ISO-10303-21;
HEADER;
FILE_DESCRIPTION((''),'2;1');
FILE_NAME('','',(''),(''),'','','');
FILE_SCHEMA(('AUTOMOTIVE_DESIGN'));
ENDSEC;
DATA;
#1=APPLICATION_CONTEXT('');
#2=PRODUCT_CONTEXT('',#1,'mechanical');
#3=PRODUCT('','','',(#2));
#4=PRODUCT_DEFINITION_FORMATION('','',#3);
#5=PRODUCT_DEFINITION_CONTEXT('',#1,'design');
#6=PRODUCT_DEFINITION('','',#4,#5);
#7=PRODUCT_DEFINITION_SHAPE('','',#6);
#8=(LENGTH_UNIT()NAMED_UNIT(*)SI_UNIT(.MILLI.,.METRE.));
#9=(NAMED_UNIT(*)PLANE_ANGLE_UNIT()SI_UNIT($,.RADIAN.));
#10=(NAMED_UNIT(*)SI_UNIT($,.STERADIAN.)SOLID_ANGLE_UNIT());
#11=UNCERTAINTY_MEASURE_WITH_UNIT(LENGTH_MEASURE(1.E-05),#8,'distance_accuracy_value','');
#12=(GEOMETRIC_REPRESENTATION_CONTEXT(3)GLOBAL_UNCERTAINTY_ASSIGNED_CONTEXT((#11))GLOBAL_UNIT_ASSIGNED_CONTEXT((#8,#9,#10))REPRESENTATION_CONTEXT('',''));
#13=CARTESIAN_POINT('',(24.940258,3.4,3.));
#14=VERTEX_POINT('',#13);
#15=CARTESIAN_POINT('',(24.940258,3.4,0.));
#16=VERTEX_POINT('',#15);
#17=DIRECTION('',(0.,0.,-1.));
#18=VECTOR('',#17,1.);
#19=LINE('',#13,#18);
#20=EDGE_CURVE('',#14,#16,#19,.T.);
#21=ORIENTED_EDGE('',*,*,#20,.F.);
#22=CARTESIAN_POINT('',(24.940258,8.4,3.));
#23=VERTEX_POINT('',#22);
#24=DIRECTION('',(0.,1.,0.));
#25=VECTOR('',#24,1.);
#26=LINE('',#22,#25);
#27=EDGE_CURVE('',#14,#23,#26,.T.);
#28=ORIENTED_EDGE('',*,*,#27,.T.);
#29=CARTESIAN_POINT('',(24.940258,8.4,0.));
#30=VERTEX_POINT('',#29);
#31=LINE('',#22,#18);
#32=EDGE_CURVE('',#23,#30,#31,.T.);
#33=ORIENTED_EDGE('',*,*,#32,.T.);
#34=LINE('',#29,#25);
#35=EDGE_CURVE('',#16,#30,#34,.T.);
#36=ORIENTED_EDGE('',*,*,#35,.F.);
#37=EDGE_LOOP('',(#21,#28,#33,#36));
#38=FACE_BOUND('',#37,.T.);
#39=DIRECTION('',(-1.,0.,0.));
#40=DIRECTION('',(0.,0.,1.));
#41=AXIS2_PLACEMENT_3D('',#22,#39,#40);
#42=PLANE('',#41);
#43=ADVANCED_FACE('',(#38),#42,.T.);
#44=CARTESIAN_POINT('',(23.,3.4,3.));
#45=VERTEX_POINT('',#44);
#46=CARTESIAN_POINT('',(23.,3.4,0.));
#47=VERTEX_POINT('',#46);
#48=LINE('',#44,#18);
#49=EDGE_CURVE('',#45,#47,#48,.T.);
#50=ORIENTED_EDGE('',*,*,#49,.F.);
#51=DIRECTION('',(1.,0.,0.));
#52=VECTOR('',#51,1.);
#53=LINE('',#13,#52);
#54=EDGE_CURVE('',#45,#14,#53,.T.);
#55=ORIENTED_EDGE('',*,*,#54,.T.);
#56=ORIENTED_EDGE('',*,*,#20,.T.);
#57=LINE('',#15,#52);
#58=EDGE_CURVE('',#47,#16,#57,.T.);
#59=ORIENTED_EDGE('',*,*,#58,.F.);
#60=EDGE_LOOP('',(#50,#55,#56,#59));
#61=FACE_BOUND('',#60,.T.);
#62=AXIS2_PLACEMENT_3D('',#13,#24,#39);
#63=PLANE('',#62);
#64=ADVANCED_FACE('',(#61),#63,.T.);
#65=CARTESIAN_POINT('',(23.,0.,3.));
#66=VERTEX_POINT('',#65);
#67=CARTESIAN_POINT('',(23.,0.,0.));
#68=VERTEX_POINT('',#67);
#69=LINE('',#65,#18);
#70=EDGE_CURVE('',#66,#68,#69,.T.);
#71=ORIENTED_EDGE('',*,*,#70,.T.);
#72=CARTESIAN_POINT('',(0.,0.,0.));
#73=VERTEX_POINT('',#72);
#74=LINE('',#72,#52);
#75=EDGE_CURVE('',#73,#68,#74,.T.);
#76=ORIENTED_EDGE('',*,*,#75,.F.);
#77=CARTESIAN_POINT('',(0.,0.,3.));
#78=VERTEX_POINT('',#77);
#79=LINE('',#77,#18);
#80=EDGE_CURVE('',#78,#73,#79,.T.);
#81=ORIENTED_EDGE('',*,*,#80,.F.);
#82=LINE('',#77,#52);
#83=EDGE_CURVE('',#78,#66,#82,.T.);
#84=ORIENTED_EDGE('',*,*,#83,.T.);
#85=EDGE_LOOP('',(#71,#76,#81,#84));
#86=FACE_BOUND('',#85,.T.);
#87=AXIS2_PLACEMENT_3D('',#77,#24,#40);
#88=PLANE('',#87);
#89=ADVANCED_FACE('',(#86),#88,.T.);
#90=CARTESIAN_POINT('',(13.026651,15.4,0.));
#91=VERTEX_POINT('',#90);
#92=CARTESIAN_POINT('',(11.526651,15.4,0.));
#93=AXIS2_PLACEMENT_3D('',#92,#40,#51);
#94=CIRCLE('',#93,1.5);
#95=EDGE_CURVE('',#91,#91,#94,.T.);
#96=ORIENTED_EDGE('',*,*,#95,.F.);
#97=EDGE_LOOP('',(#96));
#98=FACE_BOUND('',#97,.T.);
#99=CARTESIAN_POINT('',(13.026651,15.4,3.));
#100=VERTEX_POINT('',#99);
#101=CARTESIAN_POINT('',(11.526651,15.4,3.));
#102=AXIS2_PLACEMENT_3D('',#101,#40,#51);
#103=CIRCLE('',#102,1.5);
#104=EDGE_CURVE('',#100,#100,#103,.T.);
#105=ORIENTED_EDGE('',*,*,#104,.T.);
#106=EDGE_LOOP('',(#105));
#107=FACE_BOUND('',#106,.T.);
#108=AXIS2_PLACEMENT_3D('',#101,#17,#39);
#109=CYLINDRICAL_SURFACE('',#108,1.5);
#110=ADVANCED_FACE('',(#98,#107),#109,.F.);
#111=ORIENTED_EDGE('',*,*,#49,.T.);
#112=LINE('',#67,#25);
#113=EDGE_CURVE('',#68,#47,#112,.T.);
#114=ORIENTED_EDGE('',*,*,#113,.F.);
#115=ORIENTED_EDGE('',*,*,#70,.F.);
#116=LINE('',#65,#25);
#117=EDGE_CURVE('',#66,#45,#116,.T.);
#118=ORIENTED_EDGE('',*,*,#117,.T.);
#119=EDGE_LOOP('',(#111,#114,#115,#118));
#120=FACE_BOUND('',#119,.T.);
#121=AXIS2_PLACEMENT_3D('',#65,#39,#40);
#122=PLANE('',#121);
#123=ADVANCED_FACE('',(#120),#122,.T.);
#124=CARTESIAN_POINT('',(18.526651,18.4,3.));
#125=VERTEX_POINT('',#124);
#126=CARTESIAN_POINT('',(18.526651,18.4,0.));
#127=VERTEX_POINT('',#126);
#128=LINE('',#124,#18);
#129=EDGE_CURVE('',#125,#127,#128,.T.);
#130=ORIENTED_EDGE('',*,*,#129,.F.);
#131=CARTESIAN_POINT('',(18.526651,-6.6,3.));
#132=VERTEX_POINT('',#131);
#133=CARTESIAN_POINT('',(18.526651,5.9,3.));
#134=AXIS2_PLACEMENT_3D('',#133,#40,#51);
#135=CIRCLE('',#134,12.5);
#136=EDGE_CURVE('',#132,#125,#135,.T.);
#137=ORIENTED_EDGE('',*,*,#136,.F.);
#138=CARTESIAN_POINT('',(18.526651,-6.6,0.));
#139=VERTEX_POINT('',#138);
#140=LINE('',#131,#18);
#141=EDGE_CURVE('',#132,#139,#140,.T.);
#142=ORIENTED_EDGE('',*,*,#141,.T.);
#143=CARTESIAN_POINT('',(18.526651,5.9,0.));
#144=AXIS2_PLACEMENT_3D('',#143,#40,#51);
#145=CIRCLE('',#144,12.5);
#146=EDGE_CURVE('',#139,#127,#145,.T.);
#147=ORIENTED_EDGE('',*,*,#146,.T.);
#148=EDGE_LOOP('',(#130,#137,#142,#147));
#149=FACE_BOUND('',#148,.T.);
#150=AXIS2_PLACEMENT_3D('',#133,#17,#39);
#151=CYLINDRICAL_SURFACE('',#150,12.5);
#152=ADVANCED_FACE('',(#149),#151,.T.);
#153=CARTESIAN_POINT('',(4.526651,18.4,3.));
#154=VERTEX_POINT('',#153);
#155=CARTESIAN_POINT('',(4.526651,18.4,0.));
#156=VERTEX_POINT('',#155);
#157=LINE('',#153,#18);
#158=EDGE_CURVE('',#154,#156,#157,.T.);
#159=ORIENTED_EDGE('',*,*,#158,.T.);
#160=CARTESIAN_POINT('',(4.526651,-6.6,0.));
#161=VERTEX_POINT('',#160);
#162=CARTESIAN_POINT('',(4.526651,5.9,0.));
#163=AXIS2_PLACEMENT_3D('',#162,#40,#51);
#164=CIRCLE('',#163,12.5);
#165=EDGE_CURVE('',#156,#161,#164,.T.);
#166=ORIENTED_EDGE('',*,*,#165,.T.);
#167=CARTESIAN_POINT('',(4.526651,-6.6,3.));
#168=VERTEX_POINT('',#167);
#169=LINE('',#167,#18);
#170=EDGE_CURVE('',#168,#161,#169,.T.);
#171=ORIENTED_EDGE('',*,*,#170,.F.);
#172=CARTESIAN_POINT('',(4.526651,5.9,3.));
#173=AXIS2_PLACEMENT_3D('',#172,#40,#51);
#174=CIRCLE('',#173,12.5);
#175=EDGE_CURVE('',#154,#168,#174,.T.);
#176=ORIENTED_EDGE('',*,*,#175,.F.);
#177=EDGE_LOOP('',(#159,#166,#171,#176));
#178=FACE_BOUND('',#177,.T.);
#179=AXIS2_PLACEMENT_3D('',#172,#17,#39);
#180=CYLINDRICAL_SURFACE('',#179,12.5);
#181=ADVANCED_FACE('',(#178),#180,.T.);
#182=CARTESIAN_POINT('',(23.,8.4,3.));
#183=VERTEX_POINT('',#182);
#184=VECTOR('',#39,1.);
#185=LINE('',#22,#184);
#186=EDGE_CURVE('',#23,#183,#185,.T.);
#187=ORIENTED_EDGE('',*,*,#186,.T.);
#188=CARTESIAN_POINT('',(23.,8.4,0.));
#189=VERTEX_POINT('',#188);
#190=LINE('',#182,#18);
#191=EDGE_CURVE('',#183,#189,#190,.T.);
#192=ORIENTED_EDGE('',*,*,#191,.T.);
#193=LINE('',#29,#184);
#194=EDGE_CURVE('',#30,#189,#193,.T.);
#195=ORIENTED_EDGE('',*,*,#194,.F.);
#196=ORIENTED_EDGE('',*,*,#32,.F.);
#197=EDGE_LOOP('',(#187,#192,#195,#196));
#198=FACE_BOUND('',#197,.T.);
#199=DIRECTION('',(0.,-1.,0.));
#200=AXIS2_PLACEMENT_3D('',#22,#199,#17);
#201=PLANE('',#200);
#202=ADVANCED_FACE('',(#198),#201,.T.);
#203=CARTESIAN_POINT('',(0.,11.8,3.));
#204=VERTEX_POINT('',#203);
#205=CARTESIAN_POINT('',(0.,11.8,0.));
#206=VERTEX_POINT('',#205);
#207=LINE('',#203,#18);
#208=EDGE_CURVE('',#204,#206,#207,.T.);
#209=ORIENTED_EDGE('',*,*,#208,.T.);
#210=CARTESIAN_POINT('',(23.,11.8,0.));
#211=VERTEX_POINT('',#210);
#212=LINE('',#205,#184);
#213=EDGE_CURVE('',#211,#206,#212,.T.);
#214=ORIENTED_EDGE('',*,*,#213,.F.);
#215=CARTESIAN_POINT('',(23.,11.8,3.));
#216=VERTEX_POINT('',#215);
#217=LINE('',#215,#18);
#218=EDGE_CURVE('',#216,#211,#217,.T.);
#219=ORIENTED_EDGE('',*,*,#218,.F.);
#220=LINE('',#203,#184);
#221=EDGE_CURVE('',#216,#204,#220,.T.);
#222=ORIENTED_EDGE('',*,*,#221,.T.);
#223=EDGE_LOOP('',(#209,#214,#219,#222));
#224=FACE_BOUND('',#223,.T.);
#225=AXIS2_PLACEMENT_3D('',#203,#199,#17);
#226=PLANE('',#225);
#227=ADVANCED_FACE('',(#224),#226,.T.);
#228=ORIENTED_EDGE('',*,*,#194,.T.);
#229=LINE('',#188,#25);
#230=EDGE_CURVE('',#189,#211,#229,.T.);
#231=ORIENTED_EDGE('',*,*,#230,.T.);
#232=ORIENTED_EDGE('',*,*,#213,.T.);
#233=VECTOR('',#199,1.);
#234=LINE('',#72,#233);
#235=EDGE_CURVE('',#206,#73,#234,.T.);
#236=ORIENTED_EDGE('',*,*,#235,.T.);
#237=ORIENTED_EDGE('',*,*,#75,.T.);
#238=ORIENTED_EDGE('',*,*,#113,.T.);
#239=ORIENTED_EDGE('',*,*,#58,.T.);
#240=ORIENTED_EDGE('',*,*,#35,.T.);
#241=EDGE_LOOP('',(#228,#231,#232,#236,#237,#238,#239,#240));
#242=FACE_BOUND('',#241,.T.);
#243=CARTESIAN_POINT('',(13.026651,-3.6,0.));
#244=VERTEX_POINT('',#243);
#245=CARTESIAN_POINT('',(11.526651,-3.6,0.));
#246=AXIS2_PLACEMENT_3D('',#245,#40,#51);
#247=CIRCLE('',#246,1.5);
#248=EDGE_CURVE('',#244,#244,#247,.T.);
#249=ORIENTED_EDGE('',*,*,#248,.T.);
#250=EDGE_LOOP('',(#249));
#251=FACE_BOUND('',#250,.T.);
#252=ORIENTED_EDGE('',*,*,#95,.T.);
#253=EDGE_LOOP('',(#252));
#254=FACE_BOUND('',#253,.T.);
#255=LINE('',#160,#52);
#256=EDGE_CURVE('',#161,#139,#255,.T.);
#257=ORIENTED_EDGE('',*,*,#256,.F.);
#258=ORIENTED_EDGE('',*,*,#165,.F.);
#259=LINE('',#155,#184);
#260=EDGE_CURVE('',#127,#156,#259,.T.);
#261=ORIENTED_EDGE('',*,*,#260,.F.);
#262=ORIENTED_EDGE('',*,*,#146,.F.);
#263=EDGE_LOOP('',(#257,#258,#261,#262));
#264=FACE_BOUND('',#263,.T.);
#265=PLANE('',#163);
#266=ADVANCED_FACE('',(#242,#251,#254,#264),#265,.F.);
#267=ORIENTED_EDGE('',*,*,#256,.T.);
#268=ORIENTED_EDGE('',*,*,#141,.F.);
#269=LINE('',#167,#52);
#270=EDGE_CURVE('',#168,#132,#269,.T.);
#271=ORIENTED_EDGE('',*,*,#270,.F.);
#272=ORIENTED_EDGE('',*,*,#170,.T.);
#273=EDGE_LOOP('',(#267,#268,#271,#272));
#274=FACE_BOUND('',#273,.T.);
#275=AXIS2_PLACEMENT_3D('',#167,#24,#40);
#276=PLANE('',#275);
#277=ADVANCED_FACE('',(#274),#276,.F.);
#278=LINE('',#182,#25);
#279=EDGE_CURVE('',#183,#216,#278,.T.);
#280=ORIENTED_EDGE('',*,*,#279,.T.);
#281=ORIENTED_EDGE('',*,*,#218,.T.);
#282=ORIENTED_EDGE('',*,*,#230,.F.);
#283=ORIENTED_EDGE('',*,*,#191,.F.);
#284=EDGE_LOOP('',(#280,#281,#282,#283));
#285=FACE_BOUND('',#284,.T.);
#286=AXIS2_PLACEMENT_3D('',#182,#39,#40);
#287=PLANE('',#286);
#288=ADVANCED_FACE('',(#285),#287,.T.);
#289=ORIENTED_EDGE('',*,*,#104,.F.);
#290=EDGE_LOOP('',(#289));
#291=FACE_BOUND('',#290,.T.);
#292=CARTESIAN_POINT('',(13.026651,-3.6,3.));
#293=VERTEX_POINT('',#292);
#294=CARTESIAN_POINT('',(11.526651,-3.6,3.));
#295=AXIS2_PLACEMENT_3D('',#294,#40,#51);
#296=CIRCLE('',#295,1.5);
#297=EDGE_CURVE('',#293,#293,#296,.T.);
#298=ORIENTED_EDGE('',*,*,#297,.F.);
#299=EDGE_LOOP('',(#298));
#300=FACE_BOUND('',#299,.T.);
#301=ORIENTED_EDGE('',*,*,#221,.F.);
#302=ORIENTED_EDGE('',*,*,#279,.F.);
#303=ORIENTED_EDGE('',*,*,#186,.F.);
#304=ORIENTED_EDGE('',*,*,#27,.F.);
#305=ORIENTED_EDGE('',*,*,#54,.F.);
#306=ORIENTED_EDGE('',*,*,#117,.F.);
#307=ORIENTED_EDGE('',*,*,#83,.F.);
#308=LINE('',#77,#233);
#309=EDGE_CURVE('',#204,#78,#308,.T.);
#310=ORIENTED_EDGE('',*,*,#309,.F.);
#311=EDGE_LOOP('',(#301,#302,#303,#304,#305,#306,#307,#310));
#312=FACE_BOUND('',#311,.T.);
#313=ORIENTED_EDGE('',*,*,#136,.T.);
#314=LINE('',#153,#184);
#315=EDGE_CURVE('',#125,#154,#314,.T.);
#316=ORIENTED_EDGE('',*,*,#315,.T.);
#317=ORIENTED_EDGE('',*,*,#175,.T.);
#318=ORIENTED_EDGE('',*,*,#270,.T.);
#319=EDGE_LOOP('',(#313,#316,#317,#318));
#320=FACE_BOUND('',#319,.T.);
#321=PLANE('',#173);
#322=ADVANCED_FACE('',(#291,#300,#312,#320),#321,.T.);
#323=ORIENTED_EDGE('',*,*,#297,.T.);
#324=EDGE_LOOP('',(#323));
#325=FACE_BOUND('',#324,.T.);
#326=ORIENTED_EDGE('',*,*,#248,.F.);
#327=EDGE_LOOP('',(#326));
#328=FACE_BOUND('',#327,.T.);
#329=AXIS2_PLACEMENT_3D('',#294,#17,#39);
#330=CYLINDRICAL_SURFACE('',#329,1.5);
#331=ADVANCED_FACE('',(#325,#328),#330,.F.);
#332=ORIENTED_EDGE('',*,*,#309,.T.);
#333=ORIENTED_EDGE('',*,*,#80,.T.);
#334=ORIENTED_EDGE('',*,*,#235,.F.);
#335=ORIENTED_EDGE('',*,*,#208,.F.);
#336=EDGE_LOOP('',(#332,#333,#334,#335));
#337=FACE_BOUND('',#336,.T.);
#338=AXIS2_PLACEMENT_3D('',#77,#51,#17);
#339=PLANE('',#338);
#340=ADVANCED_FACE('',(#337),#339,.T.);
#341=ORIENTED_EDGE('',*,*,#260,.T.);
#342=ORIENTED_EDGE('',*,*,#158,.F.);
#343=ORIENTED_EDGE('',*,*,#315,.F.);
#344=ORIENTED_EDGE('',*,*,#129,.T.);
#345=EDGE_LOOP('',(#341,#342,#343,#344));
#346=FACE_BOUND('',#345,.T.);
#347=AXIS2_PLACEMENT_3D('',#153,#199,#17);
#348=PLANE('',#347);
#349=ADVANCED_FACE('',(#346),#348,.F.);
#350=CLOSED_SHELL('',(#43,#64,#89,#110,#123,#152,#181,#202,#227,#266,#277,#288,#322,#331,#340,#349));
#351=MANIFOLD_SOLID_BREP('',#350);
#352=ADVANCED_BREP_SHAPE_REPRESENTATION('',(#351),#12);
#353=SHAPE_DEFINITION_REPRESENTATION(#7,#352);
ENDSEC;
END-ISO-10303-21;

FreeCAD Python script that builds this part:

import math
import FreeCAD as App
import Part
import Sketcher

V = App.Vector
Q = App.Units.Quantity


def add_polygon(sketch, points):
    """Adds a closed chain of lines whose ends are joined by coincident constraints."""
    first, n = sketch.GeometryCount, len(points)
    for a, b in zip(points, points[1:] + points[:1]):
        sketch.addGeometry(Part.LineSegment(App.Vector(*a, 0), App.Vector(*b, 0)), False)
    for i in range(n):
        sketch.addConstraint(Sketcher.Constraint("Coincident", first + i, 2, first + (i + 1) % n, 1))

doc = App.newDocument("Part")
body = doc.addObject("PartDesign::Body", "Body")

sketch1 = doc.addObject("Sketcher::SketchObject", "Sketch")
body.addObject(sketch1)
sketch1.AttachmentSupport = (doc.XY_Plane, [""])
sketch1.MapMode = "FlatFace"
sketch1.addGeometry(Part.LineSegment(V(18.5, 18.4, 0), V(4.5, 18.4, 0)), False)
sketch1.addGeometry(Part.ArcOfCircle(Part.Circle(V(4.5, 5.9, 0), V(0, 0, 1), 12.5), math.radians(90), math.radians(270)), False)
sketch1.addGeometry(Part.LineSegment(V(4.5, -6.6, 0), V(18.5, -6.6, 0)), False)
sketch1.addGeometry(Part.ArcOfCircle(Part.Circle(V(18.5, 5.9, 0), V(0, 0, 1), 12.5), math.radians(-90), math.radians(90)), False)
sketch1.addGeometry(Part.Circle(V(11.5, -3.6, 0), V(0, 0, 1), 1.5), False)
add_polygon(sketch1, [(0, 0), (0, 11.8), (23, 11.8), (23, 8.4), (24.9, 8.4), (24.9, 3.4), (23, 3.4), (23, 0)])
sketch1.addGeometry(Part.Circle(V(11.5, 15.4, 0), V(0, 0, 1), 1.5), False)
sketch1.addConstraint([
    Sketcher.Constraint("Tangent", 0, 2, 1, 1),
    Sketcher.Constraint("Tangent", 1, 2, 2, 1),
    Sketcher.Constraint("Tangent", 2, 2, 3, 1),
    Sketcher.Constraint("Tangent", 3, 2, 0, 1),
    Sketcher.Constraint("Horizontal", 0),
    Sketcher.Constraint("Horizontal", 2),
    Sketcher.Constraint("Vertical", 5),
    Sketcher.Constraint("Horizontal", 6),
    Sketcher.Constraint("Vertical", 7),
    Sketcher.Constraint("Horizontal", 8),
    Sketcher.Constraint("Vertical", 9),
    Sketcher.Constraint("Horizontal", 10),
    Sketcher.Constraint("Vertical", 11),
    Sketcher.Constraint("Horizontal", 12),
    Sketcher.Constraint("Coincident", 12, 2, -1, 1),
    Sketcher.Constraint("Equal", 4, 13),
    Sketcher.Constraint("Vertical", 4, 3, 13, 3),
    Sketcher.Constraint("Vertical", 7, 2, 10, 2),
    Sketcher.Constraint("Equal", 7, 11),
    Sketcher.Constraint("Diameter", 4, Q("3 mm")),
    Sketcher.Constraint("Radius", 1, Q("12.5 mm")),
    Sketcher.Constraint("DistanceX", 0, 2, 0, 1, Q("14 mm")),
    Sketcher.Constraint("DistanceX", 6, 1, 6, 2, Q("23 mm")),
    Sketcher.Constraint("DistanceY", 9, 2, 9, 1, Q("5 mm")),
    Sketcher.Constraint("DistanceY", 5, 1, 5, 2, Q("11.8 mm")),
    Sketcher.Constraint("DistanceX", 1, 3, 4, 3, Q("7 mm")),
    Sketcher.Constraint("DistanceY", 4, 3, 13, 3, Q("19 mm")),
    Sketcher.Constraint("DistanceY", 13, 3, 0, 2, Q("3 mm")),
    Sketcher.Constraint("DistanceY", 7, 2, 3, 2, Q("10 mm")),
    Sketcher.Constraint("DistanceX", 8, 1, 8, 2, Q("1.940258 mm")),
    Sketcher.Constraint("DistanceX", -1, 1, 1, 3, Q("4.526651 mm")),
])
pad1 = doc.addObject("PartDesign::Pad", "Pad")
body.addObject(pad1)
pad1.Profile = sketch1
pad1.Length = 3

doc.recompute()
